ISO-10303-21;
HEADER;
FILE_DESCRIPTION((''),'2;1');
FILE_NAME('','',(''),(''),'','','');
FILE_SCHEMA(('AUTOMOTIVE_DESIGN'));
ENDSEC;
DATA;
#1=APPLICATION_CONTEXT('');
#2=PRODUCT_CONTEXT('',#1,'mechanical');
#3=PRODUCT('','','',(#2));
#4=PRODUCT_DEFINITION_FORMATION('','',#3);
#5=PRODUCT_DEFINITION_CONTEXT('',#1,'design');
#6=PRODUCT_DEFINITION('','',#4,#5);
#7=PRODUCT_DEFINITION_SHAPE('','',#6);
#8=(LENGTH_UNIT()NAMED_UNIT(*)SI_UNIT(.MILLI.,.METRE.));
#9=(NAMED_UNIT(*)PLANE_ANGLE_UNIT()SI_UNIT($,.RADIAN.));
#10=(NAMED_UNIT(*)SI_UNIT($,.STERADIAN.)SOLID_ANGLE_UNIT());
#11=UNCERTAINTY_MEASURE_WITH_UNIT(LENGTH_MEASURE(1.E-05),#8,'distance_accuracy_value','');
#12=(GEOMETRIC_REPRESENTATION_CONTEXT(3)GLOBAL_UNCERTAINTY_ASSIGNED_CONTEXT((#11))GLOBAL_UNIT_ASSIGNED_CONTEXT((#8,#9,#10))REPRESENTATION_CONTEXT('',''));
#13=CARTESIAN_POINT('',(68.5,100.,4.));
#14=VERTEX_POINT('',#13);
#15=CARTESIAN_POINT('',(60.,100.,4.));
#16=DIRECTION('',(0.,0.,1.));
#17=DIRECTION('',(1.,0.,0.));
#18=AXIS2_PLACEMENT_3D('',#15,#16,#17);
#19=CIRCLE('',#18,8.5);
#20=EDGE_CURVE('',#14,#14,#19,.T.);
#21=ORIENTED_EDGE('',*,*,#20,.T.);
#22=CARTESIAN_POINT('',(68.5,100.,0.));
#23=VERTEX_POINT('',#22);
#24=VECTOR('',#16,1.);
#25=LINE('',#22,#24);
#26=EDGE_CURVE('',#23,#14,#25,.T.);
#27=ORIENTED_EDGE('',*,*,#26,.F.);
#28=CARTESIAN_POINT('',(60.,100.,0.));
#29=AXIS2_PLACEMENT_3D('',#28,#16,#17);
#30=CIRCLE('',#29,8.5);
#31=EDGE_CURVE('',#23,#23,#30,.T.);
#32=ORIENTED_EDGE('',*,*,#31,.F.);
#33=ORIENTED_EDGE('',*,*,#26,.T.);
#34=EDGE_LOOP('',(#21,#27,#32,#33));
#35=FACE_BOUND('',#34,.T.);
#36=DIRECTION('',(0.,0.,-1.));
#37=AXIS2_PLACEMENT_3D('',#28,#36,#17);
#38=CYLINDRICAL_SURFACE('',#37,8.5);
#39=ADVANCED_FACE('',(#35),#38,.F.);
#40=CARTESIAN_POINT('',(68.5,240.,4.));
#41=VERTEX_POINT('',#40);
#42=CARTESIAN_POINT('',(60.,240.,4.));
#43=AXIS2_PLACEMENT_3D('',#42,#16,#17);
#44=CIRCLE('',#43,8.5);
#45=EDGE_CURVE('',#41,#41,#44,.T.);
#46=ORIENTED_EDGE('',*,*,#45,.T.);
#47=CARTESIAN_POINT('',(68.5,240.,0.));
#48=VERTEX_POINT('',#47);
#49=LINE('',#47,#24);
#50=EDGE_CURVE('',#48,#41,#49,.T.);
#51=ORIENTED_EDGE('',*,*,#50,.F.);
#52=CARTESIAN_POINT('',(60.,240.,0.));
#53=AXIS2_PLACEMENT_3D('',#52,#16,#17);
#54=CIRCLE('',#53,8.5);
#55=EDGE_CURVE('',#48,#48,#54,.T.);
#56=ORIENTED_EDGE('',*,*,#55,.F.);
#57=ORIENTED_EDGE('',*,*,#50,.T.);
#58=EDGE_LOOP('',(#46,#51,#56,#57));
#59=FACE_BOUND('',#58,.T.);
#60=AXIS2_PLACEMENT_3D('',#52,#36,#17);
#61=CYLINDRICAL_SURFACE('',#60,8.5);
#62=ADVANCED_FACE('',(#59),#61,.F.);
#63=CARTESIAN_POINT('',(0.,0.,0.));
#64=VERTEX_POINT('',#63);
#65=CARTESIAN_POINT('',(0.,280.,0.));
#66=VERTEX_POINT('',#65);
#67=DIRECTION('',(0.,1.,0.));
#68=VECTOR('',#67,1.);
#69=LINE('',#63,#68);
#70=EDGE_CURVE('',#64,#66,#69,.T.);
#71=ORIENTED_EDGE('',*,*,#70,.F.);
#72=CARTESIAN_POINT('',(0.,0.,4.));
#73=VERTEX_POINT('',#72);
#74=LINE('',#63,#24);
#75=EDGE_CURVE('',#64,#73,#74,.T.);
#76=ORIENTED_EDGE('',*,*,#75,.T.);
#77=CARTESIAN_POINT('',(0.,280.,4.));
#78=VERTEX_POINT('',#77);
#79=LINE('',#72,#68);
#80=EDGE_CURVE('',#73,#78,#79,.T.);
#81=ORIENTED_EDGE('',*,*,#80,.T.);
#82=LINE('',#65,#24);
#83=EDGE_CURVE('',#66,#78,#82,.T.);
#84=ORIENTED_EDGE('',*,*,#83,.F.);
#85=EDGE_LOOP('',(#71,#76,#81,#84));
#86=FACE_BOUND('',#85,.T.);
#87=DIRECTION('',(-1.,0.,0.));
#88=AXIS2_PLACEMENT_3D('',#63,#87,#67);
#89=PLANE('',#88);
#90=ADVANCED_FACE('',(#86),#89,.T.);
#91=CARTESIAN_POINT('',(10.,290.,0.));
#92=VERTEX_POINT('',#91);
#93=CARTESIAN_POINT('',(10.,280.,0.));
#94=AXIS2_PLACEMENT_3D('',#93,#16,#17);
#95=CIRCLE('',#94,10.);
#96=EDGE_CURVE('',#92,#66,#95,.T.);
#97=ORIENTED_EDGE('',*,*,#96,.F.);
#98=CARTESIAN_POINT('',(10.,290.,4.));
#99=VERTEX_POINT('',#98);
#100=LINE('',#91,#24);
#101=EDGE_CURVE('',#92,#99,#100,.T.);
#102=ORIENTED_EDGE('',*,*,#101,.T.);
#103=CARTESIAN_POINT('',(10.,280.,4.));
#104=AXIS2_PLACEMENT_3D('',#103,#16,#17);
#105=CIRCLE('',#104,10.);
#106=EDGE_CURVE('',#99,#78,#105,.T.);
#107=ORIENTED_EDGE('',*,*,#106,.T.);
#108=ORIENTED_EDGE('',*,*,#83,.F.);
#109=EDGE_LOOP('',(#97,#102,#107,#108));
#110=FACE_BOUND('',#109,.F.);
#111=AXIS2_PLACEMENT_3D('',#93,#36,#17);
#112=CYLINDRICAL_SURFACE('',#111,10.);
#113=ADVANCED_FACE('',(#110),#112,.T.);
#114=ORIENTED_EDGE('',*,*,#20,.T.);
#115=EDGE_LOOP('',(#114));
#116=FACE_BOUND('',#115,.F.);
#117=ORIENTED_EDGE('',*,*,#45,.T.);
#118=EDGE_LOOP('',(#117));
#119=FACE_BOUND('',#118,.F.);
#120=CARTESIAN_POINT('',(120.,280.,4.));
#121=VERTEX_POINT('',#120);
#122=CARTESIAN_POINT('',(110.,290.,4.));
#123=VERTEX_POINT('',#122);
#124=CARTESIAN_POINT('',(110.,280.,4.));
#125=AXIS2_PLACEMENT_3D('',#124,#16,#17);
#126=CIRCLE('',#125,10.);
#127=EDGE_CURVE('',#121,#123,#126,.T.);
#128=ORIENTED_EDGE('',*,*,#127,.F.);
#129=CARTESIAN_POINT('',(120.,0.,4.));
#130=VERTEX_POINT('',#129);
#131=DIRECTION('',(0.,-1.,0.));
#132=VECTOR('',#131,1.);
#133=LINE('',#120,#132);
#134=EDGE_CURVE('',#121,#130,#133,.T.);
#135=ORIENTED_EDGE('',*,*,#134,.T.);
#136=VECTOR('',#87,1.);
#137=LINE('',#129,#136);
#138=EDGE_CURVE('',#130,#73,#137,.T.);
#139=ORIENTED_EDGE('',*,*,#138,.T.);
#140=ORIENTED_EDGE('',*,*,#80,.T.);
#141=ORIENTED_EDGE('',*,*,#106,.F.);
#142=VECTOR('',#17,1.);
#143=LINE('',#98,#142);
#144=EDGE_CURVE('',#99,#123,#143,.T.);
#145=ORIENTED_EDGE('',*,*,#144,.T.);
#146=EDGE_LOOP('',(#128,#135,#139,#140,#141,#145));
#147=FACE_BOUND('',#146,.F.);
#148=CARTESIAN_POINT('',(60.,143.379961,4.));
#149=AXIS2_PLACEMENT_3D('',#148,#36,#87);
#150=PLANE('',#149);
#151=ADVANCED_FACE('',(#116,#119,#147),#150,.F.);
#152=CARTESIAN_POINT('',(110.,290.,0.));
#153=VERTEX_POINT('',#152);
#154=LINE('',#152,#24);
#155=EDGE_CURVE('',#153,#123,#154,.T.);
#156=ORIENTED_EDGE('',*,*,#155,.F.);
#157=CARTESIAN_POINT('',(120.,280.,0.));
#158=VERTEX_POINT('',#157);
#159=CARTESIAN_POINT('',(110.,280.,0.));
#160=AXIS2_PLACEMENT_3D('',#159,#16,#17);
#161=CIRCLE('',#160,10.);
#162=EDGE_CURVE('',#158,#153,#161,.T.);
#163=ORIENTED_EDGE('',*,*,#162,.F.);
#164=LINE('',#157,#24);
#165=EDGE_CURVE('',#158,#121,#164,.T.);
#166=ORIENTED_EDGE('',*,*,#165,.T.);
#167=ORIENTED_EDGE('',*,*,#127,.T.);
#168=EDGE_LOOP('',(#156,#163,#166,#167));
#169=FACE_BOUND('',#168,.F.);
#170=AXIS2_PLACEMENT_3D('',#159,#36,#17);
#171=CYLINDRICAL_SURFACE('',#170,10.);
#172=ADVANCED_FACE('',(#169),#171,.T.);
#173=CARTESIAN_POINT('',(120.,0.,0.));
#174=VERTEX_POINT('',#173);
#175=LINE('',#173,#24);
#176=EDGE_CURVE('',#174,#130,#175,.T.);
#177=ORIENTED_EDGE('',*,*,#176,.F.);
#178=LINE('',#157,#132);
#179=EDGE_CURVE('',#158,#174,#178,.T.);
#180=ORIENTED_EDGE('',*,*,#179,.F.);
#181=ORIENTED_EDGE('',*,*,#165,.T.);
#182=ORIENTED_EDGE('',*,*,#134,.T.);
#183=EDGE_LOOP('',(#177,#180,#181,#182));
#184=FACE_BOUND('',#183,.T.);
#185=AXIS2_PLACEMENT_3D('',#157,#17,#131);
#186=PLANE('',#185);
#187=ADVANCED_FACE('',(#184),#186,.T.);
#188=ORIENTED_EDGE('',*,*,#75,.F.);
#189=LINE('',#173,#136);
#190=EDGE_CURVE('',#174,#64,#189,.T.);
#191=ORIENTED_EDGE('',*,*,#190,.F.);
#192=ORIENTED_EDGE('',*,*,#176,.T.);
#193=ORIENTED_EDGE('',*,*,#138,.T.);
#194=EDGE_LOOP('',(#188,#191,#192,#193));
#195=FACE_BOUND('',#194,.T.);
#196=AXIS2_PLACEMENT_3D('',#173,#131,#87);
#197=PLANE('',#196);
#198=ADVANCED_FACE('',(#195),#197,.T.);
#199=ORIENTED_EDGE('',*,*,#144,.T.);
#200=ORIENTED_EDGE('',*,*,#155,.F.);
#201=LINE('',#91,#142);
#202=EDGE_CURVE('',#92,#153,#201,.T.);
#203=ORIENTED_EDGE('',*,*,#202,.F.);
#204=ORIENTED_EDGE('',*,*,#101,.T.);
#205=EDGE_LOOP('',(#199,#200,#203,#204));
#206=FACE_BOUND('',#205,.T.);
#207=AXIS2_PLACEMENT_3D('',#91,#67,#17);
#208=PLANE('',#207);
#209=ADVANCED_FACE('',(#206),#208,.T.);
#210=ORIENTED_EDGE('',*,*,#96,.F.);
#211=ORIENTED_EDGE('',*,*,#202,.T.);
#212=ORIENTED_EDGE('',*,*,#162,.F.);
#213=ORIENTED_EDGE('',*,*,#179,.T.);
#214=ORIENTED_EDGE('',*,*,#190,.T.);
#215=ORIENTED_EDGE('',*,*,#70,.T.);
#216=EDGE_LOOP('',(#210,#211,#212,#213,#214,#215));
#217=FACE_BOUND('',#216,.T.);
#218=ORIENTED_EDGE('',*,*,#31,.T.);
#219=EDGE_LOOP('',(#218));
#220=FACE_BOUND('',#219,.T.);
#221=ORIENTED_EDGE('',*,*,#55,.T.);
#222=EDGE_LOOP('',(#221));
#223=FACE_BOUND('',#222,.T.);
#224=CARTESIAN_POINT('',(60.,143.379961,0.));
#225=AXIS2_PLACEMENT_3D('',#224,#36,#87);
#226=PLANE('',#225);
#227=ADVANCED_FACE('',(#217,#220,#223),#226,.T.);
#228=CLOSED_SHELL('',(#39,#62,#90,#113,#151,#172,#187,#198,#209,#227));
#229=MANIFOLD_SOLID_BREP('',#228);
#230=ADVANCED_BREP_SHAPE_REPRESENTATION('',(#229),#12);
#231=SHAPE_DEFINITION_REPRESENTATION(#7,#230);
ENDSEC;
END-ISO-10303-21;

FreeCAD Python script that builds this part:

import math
import FreeCAD as App
import Part
import Sketcher
Q = App.Units.Quantity

doc = App.newDocument("Part")
params = doc.addObject("Spreadsheet::Sheet", "Params")
for row, (alias, value) in enumerate([
    ("sketch1_diameter", "17 mm"),
    ("sketch1_radius", "10 mm"),
    ("sketch1_width", "100 mm"),
    ("sketch1_height", "280 mm"),
    ("pad1_length", "4 mm"),
], start=1):
    params.set(f"A{row}", alias)
    params.set(f"B{row}", "=" + value)
    params.setAlias(f"B{row}", alias)

body = doc.addObject("PartDesign::Body", "Body")

# Sketch on XY plane
sketch1 = body.newObject("Sketcher::SketchObject", "Sketch")
sketch1.AttachmentSupport = (doc.getObject("XY_Plane"), [""])
sketch1.MapMode = "FlatFace"
sketch1.addGeometry(Part.LineSegment(App.Vector(120, 0, 0), App.Vector(120, 280, 0)), False)
sketch1.addGeometry(Part.ArcOfCircle(Part.Circle(App.Vector(110, 280, 0), App.Vector(0, 0, 1), 10), math.radians(0), math.radians(90)), False)
sketch1.addGeometry(Part.LineSegment(App.Vector(110, 290, 0), App.Vector(10, 290, 0)), False)
sketch1.addGeometry(Part.ArcOfCircle(Part.Circle(App.Vector(10, 280, 0), App.Vector(0, 0, 1), 10), math.radians(90), math.radians(180)), False)
sketch1.addGeometry(Part.LineSegment(App.Vector(0, 280, 0), App.Vector(0, 0, 0)), False)
sketch1.addGeometry(Part.LineSegment(App.Vector(0, 0, 0), App.Vector(120, 0, 0)), False)
sketch1.addGeometry(Part.Circle(App.Vector(60, 100, 0), App.Vector(0, 0, 1), 8), False)
sketch1.addGeometry(Part.Circle(App.Vector(60, 240, 0), App.Vector(0, 0, 1), 8), False)
sketch1.addConstraint(Sketcher.Constraint("Tangent", 0, 2, 1, 1))
sketch1.addConstraint(Sketcher.Constraint("Tangent", 1, 2, 2, 1))
sketch1.addConstraint(Sketcher.Constraint("Tangent", 2, 2, 3, 1))
sketch1.addConstraint(Sketcher.Constraint("Tangent", 3, 2, 4, 1))
sketch1.addConstraint(Sketcher.Constraint("Coincident", 4, 2, 5, 1))
sketch1.addConstraint(Sketcher.Constraint("Coincident", 5, 2, 0, 1))
sketch1.addConstraint(Sketcher.Constraint("Vertical", 0))
sketch1.addConstraint(Sketcher.Constraint("Horizontal", 2))
sketch1.addConstraint(Sketcher.Constraint("Vertical", 4))
sketch1.addConstraint(Sketcher.Constraint("Horizontal", 5))
sketch1.addConstraint(Sketcher.Constraint("Coincident", 4, 2, -1, 1))
sketch1.addConstraint(Sketcher.Constraint("Equal", 1, 3))
sketch1.addConstraint(Sketcher.Constraint("Equal", 6, 7))
sketch1.addConstraint(Sketcher.Constraint("Vertical", 6, 3, 7, 3))
sketch1.addConstraint(Sketcher.Constraint("Diameter", 6, Q("17 mm")))
sketch1.addConstraint(Sketcher.Constraint("Radius", 1, Q("10 mm")))
sketch1.addConstraint(Sketcher.Constraint("DistanceX", 2, 2, 2, 1, Q("100 mm")))
sketch1.addConstraint(Sketcher.Constraint("DistanceY", 0, 1, 0, 2, Q("280 mm")))
sketch1.addConstraint(Sketcher.Constraint("DistanceX", -1, 1, 6, 3, Q("60 mm")))
sketch1.addConstraint(Sketcher.Constraint("DistanceY", -1, 1, 6, 3, Q("100 mm")))
sketch1.addConstraint(Sketcher.Constraint("DistanceY", -1, 1, 7, 3, Q("240 mm")))
sketch1.setExpression("Constraints[14]", "Params.sketch1_diameter")
sketch1.setExpression("Constraints[15]", "Params.sketch1_radius")
sketch1.setExpression("Constraints[16]", "Params.sketch1_width")
sketch1.setExpression("Constraints[17]", "Params.sketch1_height")
pad1 = body.newObject("PartDesign::Pad", "Pad")
pad1.Profile = sketch1
pad1.setExpression("Length", "Params.pad1_length")

doc.recompute()
